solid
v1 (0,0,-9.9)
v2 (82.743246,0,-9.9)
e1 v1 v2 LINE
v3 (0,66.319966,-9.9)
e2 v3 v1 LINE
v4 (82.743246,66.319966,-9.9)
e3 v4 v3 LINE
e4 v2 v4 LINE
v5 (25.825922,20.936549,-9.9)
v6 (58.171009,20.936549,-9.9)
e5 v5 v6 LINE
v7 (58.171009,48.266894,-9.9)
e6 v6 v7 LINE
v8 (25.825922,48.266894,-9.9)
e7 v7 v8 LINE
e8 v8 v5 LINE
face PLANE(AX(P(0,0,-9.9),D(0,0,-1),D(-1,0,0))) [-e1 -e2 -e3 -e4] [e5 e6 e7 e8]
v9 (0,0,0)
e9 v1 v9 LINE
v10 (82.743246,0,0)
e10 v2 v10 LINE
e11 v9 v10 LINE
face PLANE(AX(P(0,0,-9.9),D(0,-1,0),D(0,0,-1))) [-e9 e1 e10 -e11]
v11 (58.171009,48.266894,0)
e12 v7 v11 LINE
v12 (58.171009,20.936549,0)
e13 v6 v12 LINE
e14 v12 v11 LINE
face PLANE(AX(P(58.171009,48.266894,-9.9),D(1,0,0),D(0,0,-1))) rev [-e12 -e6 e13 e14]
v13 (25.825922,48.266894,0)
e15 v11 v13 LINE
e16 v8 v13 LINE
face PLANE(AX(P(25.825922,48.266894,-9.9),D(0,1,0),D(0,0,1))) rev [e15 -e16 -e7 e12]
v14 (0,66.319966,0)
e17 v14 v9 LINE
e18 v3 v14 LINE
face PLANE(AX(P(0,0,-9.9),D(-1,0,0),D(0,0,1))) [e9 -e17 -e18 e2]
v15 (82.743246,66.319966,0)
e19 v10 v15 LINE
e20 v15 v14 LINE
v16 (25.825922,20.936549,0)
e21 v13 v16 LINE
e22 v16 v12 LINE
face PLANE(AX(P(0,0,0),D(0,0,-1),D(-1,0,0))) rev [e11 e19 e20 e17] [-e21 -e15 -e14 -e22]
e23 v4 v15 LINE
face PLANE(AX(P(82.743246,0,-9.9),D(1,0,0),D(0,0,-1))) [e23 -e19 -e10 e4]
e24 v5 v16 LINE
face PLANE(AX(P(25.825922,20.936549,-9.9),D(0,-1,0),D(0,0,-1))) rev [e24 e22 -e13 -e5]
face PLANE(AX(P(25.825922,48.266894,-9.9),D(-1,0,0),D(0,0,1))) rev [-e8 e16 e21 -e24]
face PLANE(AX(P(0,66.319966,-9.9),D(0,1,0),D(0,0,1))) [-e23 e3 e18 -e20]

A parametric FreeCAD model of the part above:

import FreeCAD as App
import Part
import Sketcher

V = App.Vector


def add_polygon(sketch, points):
    """Adds a closed chain of lines whose ends are joined by coincident constraints."""
    first, n = sketch.GeometryCount, len(points)
    for a, b in zip(points, points[1:] + points[:1]):
        sketch.addGeometry(Part.LineSegment(App.Vector(*a, 0), App.Vector(*b, 0)), False)
    for i in range(n):
        sketch.addConstraint(Sketcher.Constraint("Coincident", first + i, 2, first + (i + 1) % n, 1))

doc = App.newDocument("Part")
body = doc.addObject("PartDesign::Body", "Body")

sketch1 = body.newObject("Sketcher::SketchObject", "Sketch")
sketch1.AttachmentSupport = (doc.getObject("XY_Plane"), [""])
sketch1.MapMode = "FlatFace"
add_polygon(sketch1, [(0, 66), (0, 0), (83, 0), (83, 66)])
add_polygon(sketch1, [(58, 21), (26, 21), (26, 48), (58, 48)])
sketch1.addConstraint([
    Sketcher.Constraint("Vertical", 0),
    Sketcher.Constraint("Horizontal", 1),
    Sketcher.Constraint("Vertical", 2),
    Sketcher.Constraint("Horizontal", 3),
    Sketcher.Constraint("Horizontal", 4),
    Sketcher.Constraint("Vertical", 5),
    Sketcher.Constraint("Horizontal", 6),
    Sketcher.Constraint("Vertical", 7),
    Sketcher.Constraint("Coincident", 0, 2, -1, 1),
    Sketcher.Constraint("DistanceX", 1, 1, 1, 2, 82.743246),
    Sketcher.Constraint("DistanceX", 4, 2, 4, 1, 32.345087),
    Sketcher.Constraint("DistanceY", 0, 2, 0, 1, 66.319966),
    Sketcher.Constraint("DistanceY", 5, 1, 5, 2, 27.330345),
    Sketcher.Constraint("DistanceY", -1, 1, 4, 2, 20.936549),
    Sketcher.Constraint("DistanceX", -1, 1, 6, 2, 58.171009),
])
pad1 = body.newObject("PartDesign::Pad", "Pad")
pad1.Profile = sketch1
pad1.Length = 9.9
pad1.Reversed = True

doc.recompute()
